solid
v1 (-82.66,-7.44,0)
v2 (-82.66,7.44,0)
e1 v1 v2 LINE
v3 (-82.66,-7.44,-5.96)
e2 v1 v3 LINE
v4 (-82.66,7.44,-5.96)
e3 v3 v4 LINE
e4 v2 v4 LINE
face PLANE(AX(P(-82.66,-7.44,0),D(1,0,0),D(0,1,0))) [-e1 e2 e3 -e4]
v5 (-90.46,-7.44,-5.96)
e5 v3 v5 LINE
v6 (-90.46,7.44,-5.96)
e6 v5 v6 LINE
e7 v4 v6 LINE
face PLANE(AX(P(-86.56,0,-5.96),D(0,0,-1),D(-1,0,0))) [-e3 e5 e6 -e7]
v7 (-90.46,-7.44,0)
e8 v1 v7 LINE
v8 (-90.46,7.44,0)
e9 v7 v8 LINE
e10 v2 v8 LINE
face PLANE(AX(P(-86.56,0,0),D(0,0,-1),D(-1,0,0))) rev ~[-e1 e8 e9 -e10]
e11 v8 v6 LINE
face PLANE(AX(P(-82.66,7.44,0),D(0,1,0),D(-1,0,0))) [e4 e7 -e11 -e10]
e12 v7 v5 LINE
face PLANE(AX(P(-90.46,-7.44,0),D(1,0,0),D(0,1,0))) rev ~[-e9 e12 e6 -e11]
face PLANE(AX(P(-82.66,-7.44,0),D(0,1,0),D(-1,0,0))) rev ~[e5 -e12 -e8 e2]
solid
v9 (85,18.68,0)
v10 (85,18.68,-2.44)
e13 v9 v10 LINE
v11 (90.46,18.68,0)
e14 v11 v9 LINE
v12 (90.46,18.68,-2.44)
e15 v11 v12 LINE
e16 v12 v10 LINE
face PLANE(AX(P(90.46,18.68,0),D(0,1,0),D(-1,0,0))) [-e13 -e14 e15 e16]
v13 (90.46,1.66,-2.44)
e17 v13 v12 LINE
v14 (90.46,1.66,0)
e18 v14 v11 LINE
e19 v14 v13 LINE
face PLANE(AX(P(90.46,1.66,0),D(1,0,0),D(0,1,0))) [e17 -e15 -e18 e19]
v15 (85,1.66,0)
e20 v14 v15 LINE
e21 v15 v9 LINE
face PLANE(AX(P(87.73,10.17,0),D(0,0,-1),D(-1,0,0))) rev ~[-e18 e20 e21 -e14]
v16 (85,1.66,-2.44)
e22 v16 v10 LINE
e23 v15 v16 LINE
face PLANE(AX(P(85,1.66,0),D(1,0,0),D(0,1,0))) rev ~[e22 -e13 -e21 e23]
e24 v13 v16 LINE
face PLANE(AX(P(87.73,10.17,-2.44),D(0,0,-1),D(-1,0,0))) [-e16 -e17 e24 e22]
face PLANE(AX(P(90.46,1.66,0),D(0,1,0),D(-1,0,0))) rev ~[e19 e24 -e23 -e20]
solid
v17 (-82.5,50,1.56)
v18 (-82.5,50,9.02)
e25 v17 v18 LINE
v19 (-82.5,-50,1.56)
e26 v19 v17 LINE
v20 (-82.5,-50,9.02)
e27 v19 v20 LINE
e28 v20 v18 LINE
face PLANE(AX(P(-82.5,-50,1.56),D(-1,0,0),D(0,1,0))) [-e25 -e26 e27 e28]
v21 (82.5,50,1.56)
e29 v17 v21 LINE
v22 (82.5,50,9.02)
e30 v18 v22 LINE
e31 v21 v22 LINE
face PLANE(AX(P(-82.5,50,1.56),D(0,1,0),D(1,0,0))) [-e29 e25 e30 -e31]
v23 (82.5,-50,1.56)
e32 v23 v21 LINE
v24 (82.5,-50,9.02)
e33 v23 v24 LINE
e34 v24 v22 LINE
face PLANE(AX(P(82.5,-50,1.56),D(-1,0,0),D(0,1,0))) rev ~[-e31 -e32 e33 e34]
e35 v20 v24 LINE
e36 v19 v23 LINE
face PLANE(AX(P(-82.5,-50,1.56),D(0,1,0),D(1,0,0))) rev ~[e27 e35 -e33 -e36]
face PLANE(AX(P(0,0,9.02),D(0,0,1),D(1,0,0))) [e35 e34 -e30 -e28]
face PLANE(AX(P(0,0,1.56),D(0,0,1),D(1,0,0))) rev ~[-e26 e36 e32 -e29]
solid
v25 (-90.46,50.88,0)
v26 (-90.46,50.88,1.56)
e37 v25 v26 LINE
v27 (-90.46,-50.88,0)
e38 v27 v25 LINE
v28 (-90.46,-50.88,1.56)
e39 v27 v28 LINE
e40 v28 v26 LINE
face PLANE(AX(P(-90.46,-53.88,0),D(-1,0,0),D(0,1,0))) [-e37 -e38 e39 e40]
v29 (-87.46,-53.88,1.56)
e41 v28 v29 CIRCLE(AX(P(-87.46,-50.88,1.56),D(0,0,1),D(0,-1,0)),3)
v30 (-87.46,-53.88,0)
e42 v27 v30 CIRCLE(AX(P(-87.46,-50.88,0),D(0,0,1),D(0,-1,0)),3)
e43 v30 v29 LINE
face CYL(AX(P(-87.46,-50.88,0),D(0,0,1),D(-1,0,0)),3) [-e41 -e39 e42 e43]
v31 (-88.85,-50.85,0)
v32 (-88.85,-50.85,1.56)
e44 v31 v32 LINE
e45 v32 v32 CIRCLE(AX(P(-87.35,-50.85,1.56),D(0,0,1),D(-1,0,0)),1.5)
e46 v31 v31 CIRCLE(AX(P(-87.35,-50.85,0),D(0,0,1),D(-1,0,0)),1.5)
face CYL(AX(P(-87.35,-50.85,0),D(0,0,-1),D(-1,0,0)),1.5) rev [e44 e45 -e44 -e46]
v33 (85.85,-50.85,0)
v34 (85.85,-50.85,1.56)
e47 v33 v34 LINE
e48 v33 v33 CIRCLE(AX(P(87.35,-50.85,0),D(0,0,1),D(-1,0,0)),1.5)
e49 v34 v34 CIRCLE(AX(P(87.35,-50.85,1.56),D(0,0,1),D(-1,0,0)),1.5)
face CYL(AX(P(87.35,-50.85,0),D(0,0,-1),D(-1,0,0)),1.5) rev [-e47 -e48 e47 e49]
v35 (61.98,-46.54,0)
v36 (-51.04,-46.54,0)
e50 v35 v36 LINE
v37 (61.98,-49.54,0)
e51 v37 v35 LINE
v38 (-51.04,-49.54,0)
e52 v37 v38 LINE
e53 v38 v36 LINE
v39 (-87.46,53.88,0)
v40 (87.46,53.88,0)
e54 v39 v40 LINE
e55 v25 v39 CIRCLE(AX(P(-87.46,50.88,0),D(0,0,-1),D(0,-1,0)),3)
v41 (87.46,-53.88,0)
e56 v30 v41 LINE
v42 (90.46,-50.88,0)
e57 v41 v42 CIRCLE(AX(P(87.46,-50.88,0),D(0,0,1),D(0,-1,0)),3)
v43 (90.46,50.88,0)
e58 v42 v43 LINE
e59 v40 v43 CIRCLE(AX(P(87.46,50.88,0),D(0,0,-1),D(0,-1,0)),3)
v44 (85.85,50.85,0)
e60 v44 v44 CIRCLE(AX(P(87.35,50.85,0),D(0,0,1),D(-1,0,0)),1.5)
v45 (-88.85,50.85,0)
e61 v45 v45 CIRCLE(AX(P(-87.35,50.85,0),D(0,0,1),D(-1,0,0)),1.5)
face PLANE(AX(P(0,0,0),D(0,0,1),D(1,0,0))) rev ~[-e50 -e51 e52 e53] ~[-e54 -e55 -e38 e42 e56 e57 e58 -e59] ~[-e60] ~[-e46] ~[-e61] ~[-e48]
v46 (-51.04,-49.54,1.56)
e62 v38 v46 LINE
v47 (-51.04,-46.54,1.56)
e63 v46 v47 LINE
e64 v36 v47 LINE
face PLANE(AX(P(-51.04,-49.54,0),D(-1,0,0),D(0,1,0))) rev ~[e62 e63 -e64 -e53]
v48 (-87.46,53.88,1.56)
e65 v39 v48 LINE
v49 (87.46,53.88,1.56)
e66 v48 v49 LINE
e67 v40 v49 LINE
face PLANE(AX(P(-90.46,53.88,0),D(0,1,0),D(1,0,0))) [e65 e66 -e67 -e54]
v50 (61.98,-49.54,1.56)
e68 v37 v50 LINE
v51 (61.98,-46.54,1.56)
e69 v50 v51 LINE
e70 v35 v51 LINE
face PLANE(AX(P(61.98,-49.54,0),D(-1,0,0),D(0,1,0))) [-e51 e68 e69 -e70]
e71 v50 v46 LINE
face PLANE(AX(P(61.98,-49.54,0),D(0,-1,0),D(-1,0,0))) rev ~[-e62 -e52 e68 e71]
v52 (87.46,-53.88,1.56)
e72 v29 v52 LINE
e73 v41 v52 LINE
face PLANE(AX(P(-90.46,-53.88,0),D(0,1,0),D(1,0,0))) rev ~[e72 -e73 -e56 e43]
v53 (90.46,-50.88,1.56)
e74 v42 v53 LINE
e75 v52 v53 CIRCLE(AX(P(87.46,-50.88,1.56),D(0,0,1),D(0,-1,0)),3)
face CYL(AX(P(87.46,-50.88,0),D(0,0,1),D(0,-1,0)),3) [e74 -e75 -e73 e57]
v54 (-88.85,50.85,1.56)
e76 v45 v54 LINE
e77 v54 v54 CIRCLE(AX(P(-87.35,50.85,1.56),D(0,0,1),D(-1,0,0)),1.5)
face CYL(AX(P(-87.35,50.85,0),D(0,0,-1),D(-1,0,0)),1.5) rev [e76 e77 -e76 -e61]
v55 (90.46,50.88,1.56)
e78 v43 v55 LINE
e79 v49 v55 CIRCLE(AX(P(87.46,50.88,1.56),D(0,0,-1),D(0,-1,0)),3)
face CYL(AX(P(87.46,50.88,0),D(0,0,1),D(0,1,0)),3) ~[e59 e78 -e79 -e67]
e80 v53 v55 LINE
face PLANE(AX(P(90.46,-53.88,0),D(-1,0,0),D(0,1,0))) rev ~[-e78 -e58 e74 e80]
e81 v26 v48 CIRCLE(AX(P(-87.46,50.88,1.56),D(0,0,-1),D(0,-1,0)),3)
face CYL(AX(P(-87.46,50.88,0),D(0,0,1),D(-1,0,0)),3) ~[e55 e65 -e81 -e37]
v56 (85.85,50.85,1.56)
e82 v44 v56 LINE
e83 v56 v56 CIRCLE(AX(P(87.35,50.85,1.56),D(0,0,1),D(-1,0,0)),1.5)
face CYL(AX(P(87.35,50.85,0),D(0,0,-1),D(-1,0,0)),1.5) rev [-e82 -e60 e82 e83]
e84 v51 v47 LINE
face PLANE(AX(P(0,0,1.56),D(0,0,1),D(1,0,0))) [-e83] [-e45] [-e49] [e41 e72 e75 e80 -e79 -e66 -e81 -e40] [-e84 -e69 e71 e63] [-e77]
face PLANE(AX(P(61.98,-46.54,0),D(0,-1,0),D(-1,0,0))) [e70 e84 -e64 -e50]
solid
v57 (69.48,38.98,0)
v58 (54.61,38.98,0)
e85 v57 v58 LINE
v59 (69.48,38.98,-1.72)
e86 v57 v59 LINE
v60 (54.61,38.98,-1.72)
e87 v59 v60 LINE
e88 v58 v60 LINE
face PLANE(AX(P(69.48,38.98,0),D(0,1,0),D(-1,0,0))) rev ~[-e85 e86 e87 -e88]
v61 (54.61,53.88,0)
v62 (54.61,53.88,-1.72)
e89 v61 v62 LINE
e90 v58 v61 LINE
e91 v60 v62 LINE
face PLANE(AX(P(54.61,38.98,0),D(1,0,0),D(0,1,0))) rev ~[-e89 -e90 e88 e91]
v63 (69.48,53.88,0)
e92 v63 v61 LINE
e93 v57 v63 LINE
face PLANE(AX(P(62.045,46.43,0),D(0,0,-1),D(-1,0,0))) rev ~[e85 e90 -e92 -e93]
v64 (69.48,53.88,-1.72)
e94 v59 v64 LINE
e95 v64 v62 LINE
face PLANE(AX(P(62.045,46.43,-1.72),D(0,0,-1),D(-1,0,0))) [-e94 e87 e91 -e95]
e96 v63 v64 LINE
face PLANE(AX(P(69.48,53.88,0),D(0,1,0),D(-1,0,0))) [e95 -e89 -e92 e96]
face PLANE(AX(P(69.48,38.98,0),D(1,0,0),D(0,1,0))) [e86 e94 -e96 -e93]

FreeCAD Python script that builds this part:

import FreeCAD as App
import Part
import Sketcher

V = App.Vector


def edges_at(feature, points):
    """Names of the edges that pass closest to the given points."""
    edges = feature.Shape.Edges
    near = lambda p: min(range(len(edges)), key=lambda i: edges[i].distToShape(Part.Vertex(*p))[0])
    return sorted({f"Edge{near(p) + 1}" for p in points})

doc = App.newDocument("Part")
body = doc.addObject("PartDesign::Body", "Body")

# Sketch on XY plane
sketch1 = body.newObject("Sketcher::SketchObject", "Sketch")
sketch1.AttachmentSupport = (doc.getObject("XY_Plane"), [""])
sketch1.MapMode = "FlatFace"
sketch1.addGeometry(Part.LineSegment(V(-90.5, 53.9, 0), V(-90.5, -53.9, 0)), False)
sketch1.addGeometry(Part.LineSegment(V(-90.5, -53.9, 0), V(90.5, -53.9, 0)), False)
sketch1.addGeometry(Part.LineSegment(V(90.5, -53.9, 0), V(90.5, 53.9, 0)), False)
sketch1.addGeometry(Part.LineSegment(V(90.5, 53.9, 0), V(-90.5, 53.9, 0)), False)
sketch1.addGeometry(Part.Circle(V(-87.3, -50.9, 0), V(0, 0, 1), 1.5), False)
sketch1.addGeometry(Part.Circle(V(87.3, -50.9, 0), V(0, 0, 1), 1.5), False)
sketch1.addGeometry(Part.Circle(V(-87.3, 50.9, 0), V(0, 0, 1), 1.5), False)
sketch1.addGeometry(Part.Circle(V(87.3, 50.9, 0), V(0, 0, 1), 1.5), False)
sketch1.addConstraint(Sketcher.Constraint("Coincident", 0, 2, 1, 1))
sketch1.addConstraint(Sketcher.Constraint("Coincident", 1, 2, 2, 1))
sketch1.addConstraint(Sketcher.Constraint("Coincident", 2, 2, 3, 1))
sketch1.addConstraint(Sketcher.Constraint("Coincident", 3, 2, 0, 1))
sketch1.addConstraint(Sketcher.Constraint("Vertical", 0))
sketch1.addConstraint(Sketcher.Constraint("Horizontal", 1))
sketch1.addConstraint(Sketcher.Constraint("Vertical", 2))
sketch1.addConstraint(Sketcher.Constraint("Horizontal", 3))
sketch1.addConstraint(Sketcher.Constraint("Equal", 4, 5))
sketch1.addConstraint(Sketcher.Constraint("Equal", 5, 6))
sketch1.addConstraint(Sketcher.Constraint("Equal", 6, 7))
sketch1.addConstraint(Sketcher.Constraint("Symmetric", 5, 3, 6, 3, -1, 1))
sketch1.addConstraint(Sketcher.Constraint("Symmetric", 4, 3, 7, 3, -1, 1))
sketch1.addConstraint(Sketcher.Constraint("Symmetric", 0, 2, 2, 2, -1, 1))
sketch1.addConstraint(Sketcher.Constraint("Symmetric", 4, 3, 5, 3, -2))
sketch1.addConstraint(Sketcher.Constraint("Diameter", 4, 3.0))
sketch1.addConstraint(Sketcher.Constraint("DistanceX", 1, 1, 1, 2, 180.92))
sketch1.addConstraint(Sketcher.Constraint("DistanceY", 0, 2, 0, 1, 107.76))
sketch1.addConstraint(Sketcher.Constraint("DistanceX", 4, 3, 5, 3, 174.7))
sketch1.addConstraint(Sketcher.Constraint("DistanceY", 4, 3, 6, 3, 101.7))
pad1 = body.newObject("PartDesign::Pad", "Pad")
pad1.Profile = sketch1
pad1.Length = 1.56

# Sketch on XY plane
sketch2 = body.newObject("Sketcher::SketchObject", "Sketch001")
sketch2.AttachmentSupport = (doc.getObject("XY_Plane"), [""])
sketch2.MapMode = "FlatFace"
sketch2.addGeometry(Part.LineSegment(V(62, -46.5, 0), V(62, -49.5, 0)), False)
sketch2.addGeometry(Part.LineSegment(V(62, -49.5, 0), V(-51, -49.5, 0)), False)
sketch2.addGeometry(Part.LineSegment(V(-51, -49.5, 0), V(-51, -46.5, 0)), False)
sketch2.addGeometry(Part.LineSegment(V(-51, -46.5, 0), V(62, -46.5, 0)), False)
sketch2.addConstraint(Sketcher.Constraint("Coincident", 0, 2, 1, 1))
sketch2.addConstraint(Sketcher.Constraint("Coincident", 1, 2, 2, 1))
sketch2.addConstraint(Sketcher.Constraint("Coincident", 2, 2, 3, 1))
sketch2.addConstraint(Sketcher.Constraint("Coincident", 3, 2, 0, 1))
sketch2.addConstraint(Sketcher.Constraint("Vertical", 0))
sketch2.addConstraint(Sketcher.Constraint("Horizontal", 1))
sketch2.addConstraint(Sketcher.Constraint("Vertical", 2))
sketch2.addConstraint(Sketcher.Constraint("Horizontal", 3))
sketch2.addConstraint(Sketcher.Constraint("DistanceY", 0, 2, 0, 1, 3.0))
sketch2.addConstraint(Sketcher.Constraint("DistanceX", 1, 2, 1, 1, 113.02))
sketch2.addConstraint(Sketcher.Constraint("DistanceX", -1, 1, 0, 2, 61.98))
sketch2.addConstraint(Sketcher.Constraint("DistanceY", 0, 2, -1, 1, 49.54))
pocket1 = body.newObject("PartDesign::Pocket", "Pocket")
pocket1.Profile = sketch2
pocket1.Length = 1.56
pocket1.Reversed = True
doc.recompute()

fillet = body.newObject("PartDesign::Fillet", "Fillet")
fillet.Base = (pocket1, edges_at(pocket1, [
    (90.46, -53.88, 0.78),
    (-90.46, -53.88, 0.78),
    (-90.46, 53.88, 0.78),
    (90.46, 53.88, 0.78),
]))
fillet.Radius = 3
body2 = doc.addObject("PartDesign::Body", "Body001")

# Sketch on XY plane
sketch3 = body2.newObject("Sketcher::SketchObject", "Sketch002")
sketch3.AttachmentSupport = (doc.getObject("XY_Plane001"), [""])
sketch3.MapMode = "FlatFace"
sketch3.AttachmentOffset = App.Placement(V(0, 0, 1.56), App.Rotation())
sketch3.addGeometry(Part.LineSegment(V(-82, 50, 0), V(-82, -50, 0)), False)
sketch3.addGeometry(Part.LineSegment(V(-82, -50, 0), V(82, -50, 0)), False)
sketch3.addGeometry(Part.LineSegment(V(82, -50, 0), V(82, 50, 0)), False)
sketch3.addGeometry(Part.LineSegment(V(82, 50, 0), V(-82, 50, 0)), False)
sketch3.addConstraint(Sketcher.Constraint("Coincident", 0, 2, 1, 1))
sketch3.addConstraint(Sketcher.Constraint("Coincident", 1, 2, 2, 1))
sketch3.addConstraint(Sketcher.Constraint("Coincident", 2, 2, 3, 1))
sketch3.addConstraint(Sketcher.Constraint("Coincident", 3, 2, 0, 1))
sketch3.addConstraint(Sketcher.Constraint("Vertical", 0))
sketch3.addConstraint(Sketcher.Constraint("Horizontal", 1))
sketch3.addConstraint(Sketcher.Constraint("Vertical", 2))
sketch3.addConstraint(Sketcher.Constraint("Horizontal", 3))
sketch3.addConstraint(Sketcher.Constraint("Symmetric", 0, 2, 2, 2, -1, 1))
sketch3.addConstraint(Sketcher.Constraint("DistanceX", 1, 1, 1, 2, 165.0))
sketch3.addConstraint(Sketcher.Constraint("DistanceY", 0, 2, 0, 1, 100.0))
pad2 = body2.newObject("PartDesign::Pad", "Pad001")
pad2.Profile = sketch3
pad2.Length = 7.46
body3 = doc.addObject("PartDesign::Body", "Body002")

# Sketch on XY plane
sketch4 = body3.newObject("Sketcher::SketchObject", "Sketch003")
sketch4.AttachmentSupport = (doc.getObject("XY_Plane002"), [""])
sketch4.MapMode = "FlatFace"
sketch4.addGeometry(Part.LineSegment(V(-83, 7, 0), V(-83, -7, 0)), False)
sketch4.addGeometry(Part.LineSegment(V(-83, -7, 0), V(-90, -7, 0)), False)
sketch4.addGeometry(Part.LineSegment(V(-90, -7, 0), V(-90, 7, 0)), False)
sketch4.addGeometry(Part.LineSegment(V(-90, 7, 0), V(-83, 7, 0)), False)
sketch4.addConstraint(Sketcher.Constraint("Coincident", 0, 2, 1, 1))
sketch4.addConstraint(Sketcher.Constraint("Coincident", 1, 2, 2, 1))
sketch4.addConstraint(Sketcher.Constraint("Coincident", 2, 2, 3, 1))
sketch4.addConstraint(Sketcher.Constraint("Coincident", 3, 2, 0, 1))
sketch4.addConstraint(Sketcher.Constraint("Vertical", 0))
sketch4.addConstraint(Sketcher.Constraint("Horizontal", 1))
sketch4.addConstraint(Sketcher.Constraint("Vertical", 2))
sketch4.addConstraint(Sketcher.Constraint("Horizontal", 3))
sketch4.addConstraint(Sketcher.Constraint("DistanceX", 1, 2, 1, 1, 7.8))
sketch4.addConstraint(Sketcher.Constraint("DistanceY", 0, 2, 0, 1, 14.88))
sketch4.addConstraint(Sketcher.Constraint("DistanceX", 0, 2, -1, 1, 82.66))
sketch4.addConstraint(Sketcher.Constraint("DistanceY", 0, 2, -1, 1, 7.44))
pad3 = body3.newObject("PartDesign::Pad", "Pad002")
pad3.Profile = sketch4
pad3.Length = 5.96
pad3.Reversed = True
body4 = doc.addObject("PartDesign::Body", "Body003")

# Sketch on XY plane
sketch5 = body4.newObject("Sketcher::SketchObject", "Sketch004")
sketch5.AttachmentSupport = (doc.getObject("XY_Plane003"), [""])
sketch5.MapMode = "FlatFace"
sketch5.addGeometry(Part.LineSegment(V(69, 54, 0), V(69, 39, 0)), False)
sketch5.addGeometry(Part.LineSegment(V(69, 39, 0), V(55, 39, 0)), False)
sketch5.addGeometry(Part.LineSegment(V(55, 39, 0), V(55, 54, 0)), False)
sketch5.addGeometry(Part.LineSegment(V(55, 54, 0), V(69, 54, 0)), False)
sketch5.addConstraint(Sketcher.Constraint("Coincident", 0, 2, 1, 1))
sketch5.addConstraint(Sketcher.Constraint("Coincident", 1, 2, 2, 1))
sketch5.addConstraint(Sketcher.Constraint("Coincident", 2, 2, 3, 1))
sketch5.addConstraint(Sketcher.Constraint("Coincident", 3, 2, 0, 1))
sketch5.addConstraint(Sketcher.Constraint("Vertical", 0))
sketch5.addConstraint(Sketcher.Constraint("Horizontal", 1))
sketch5.addConstraint(Sketcher.Constraint("Vertical", 2))
sketch5.addConstraint(Sketcher.Constraint("Horizontal", 3))
sketch5.addConstraint(Sketcher.Constraint("DistanceY", 0, 2, 0, 1, 14.9))
sketch5.addConstraint(Sketcher.Constraint("DistanceX", 1, 2, 1, 1, 14.87))
sketch5.addConstraint(Sketcher.Constraint("DistanceX", -1, 1, 0, 2, 69.48))
sketch5.addConstraint(Sketcher.Constraint("DistanceY", -1, 1, 0, 2, 38.98))
pad4 = body4.newObject("PartDesign::Pad", "Pad003")
pad4.Profile = sketch5
pad4.Length = 1.72
pad4.Reversed = True
body5 = doc.addObject("PartDesign::Body", "Body004")

# Sketch on XY plane
sketch6 = body5.newObject("Sketcher::SketchObject", "Sketch005")
sketch6.AttachmentSupport = (doc.getObject("XY_Plane004"), [""])
sketch6.MapMode = "FlatFace"
sketch6.addGeometry(Part.LineSegment(V(90, 19, 0), V(90, 2, 0)), False)
sketch6.addGeometry(Part.LineSegment(V(90, 2, 0), V(85, 2, 0)), False)
sketch6.addGeometry(Part.LineSegment(V(85, 2, 0), V(85, 19, 0)), False)
sketch6.addGeometry(Part.LineSegment(V(85, 19, 0), V(90, 19, 0)), False)
sketch6.addConstraint(Sketcher.Constraint("Coincident", 0, 2, 1, 1))
sketch6.addConstraint(Sketcher.Constraint("Coincident", 1, 2, 2, 1))
sketch6.addConstraint(Sketcher.Constraint("Coincident", 2, 2, 3, 1))
sketch6.addConstraint(Sketcher.Constraint("Coincident", 3, 2, 0, 1))
sketch6.addConstraint(Sketcher.Constraint("Vertical", 0))
sketch6.addConstraint(Sketcher.Constraint("Horizontal", 1))
sketch6.addConstraint(Sketcher.Constraint("Vertical", 2))
sketch6.addConstraint(Sketcher.Constraint("Horizontal", 3))
sketch6.addConstraint(Sketcher.Constraint("DistanceX", -1, 1, 1, 2, 85.0))
sketch6.addConstraint(Sketcher.Constraint("DistanceX", 1, 2, 1, 1, 5.46))
sketch6.addConstraint(Sketcher.Constraint("DistanceY", 0, 2, 0, 1, 17.02))
sketch6.addConstraint(Sketcher.Constraint("DistanceY", -1, 1, 0, 2, 1.66))
pad5 = body5.newObject("PartDesign::Pad", "Pad004")
pad5.Profile = sketch6
pad5.Length = 2.44
pad5.Reversed = True

doc.recompute()
